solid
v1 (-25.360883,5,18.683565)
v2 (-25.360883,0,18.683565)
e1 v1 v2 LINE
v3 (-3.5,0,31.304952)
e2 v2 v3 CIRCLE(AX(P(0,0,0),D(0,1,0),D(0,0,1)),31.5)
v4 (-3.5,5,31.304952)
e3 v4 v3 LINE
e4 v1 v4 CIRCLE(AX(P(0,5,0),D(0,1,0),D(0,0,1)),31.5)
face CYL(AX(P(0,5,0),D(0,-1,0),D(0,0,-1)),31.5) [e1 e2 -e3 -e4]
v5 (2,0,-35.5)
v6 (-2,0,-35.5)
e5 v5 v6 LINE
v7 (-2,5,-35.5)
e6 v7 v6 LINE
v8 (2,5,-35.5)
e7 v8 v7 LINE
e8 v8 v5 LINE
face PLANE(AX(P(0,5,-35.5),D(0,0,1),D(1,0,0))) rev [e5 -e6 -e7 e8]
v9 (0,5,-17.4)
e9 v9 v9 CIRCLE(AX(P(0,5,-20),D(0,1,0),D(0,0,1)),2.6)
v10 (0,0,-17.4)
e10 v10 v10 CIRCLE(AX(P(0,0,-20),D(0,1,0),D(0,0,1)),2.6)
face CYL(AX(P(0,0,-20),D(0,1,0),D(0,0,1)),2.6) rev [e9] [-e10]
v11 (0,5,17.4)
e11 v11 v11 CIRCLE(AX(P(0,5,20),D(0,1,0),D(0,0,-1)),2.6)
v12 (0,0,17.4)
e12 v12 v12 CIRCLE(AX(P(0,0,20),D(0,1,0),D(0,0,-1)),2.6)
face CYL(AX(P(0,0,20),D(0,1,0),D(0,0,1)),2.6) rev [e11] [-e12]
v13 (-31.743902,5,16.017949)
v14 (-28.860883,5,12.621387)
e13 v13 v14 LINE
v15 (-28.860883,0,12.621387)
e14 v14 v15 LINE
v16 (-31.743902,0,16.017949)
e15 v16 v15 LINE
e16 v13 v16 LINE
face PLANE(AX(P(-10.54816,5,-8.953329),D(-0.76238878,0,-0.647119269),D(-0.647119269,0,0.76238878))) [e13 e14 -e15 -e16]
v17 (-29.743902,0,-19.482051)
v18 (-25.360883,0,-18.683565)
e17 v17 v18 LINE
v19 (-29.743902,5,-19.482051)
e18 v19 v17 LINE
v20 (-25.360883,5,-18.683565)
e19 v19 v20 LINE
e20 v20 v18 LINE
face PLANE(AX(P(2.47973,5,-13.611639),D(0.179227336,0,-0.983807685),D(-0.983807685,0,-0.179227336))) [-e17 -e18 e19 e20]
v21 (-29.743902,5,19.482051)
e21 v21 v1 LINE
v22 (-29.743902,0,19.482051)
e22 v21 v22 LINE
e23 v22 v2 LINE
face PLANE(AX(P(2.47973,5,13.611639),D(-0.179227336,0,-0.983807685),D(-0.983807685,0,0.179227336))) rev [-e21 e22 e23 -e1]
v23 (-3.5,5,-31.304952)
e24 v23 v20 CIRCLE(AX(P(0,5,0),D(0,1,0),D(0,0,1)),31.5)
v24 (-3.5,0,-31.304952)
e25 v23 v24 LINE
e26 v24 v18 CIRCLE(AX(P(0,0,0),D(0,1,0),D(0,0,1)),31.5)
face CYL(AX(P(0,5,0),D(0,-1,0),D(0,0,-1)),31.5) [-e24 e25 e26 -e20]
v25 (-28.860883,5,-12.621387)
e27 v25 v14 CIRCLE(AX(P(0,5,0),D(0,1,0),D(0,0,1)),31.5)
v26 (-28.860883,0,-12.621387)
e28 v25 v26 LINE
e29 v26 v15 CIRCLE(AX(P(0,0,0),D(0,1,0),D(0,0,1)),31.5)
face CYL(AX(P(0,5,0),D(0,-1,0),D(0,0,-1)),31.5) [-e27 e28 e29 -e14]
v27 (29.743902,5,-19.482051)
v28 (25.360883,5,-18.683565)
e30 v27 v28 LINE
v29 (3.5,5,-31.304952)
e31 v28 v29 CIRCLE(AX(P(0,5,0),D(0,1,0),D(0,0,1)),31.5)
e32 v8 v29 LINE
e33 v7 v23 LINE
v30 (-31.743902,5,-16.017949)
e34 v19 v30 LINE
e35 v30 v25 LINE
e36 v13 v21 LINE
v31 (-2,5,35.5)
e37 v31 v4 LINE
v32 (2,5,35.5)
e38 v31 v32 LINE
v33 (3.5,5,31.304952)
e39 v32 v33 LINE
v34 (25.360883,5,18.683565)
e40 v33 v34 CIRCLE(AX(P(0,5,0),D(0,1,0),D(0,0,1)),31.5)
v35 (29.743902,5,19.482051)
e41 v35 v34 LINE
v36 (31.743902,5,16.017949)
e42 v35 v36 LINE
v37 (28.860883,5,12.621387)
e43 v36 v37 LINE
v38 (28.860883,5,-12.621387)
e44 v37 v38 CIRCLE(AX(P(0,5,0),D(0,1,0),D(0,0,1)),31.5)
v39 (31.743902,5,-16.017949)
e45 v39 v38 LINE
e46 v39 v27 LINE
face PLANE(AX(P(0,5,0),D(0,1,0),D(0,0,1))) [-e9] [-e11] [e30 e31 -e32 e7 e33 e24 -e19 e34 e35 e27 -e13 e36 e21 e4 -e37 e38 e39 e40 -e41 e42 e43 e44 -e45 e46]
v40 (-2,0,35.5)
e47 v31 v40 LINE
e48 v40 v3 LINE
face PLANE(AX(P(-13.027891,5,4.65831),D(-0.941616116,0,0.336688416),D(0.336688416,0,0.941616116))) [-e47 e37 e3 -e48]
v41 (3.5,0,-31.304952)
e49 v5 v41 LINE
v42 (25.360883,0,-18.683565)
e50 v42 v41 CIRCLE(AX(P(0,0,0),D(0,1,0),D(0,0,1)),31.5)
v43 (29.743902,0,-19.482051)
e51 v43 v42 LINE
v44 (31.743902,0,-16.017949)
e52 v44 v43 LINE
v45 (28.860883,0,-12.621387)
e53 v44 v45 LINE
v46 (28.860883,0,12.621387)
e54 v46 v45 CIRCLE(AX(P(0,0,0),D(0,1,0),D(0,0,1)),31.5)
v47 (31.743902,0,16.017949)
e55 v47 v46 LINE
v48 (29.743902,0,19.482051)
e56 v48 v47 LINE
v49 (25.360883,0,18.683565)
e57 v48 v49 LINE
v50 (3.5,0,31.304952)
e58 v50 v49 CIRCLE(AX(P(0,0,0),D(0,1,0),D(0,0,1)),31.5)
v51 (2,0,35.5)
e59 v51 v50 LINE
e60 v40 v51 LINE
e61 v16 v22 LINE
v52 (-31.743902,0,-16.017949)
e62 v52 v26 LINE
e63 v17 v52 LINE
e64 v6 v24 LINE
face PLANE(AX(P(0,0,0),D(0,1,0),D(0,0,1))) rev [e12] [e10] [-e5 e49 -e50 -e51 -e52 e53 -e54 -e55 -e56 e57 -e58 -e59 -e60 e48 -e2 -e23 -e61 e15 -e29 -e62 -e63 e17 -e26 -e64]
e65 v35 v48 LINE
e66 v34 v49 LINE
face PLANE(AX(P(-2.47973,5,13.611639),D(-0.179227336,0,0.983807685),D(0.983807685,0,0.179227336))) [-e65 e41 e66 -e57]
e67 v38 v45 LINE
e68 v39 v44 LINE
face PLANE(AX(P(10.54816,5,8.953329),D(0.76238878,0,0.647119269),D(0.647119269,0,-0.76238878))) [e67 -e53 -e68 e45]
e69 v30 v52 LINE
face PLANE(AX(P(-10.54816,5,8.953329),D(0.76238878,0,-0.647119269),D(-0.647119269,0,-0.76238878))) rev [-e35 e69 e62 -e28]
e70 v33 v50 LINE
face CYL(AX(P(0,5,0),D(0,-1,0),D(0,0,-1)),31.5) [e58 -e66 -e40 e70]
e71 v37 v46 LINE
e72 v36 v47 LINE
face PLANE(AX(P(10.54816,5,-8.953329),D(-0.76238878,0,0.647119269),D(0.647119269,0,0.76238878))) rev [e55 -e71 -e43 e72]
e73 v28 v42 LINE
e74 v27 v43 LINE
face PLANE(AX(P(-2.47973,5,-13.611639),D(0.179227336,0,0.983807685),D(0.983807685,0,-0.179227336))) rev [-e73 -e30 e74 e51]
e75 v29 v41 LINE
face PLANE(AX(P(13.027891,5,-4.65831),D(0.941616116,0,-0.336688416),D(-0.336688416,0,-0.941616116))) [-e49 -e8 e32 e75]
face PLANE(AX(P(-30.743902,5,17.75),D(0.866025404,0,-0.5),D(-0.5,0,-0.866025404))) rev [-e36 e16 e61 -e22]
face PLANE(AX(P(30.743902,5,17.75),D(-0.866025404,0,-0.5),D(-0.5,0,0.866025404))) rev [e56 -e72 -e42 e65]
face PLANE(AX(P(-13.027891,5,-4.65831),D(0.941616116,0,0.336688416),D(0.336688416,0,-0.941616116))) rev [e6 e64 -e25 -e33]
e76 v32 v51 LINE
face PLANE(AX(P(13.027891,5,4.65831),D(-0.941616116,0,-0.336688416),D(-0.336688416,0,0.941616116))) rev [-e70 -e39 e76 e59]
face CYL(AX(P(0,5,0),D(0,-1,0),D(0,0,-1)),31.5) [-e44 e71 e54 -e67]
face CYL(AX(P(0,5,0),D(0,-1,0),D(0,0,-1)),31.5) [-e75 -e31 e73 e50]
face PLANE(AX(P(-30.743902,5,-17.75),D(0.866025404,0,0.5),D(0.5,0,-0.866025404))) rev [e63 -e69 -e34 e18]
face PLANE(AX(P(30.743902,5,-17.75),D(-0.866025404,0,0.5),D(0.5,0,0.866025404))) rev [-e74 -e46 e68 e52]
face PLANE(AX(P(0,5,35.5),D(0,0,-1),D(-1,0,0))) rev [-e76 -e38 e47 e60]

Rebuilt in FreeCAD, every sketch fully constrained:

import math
import FreeCAD as App
import Part
import Sketcher

V = App.Vector
Q = App.Units.Quantity

doc = App.newDocument("Part")
params = doc.addObject("Spreadsheet::Sheet", "Params")
for row, (alias, value) in enumerate([
    ("sketch1_radius", "31.5 mm"),
    ("sketch1_width", "4 mm"),
    ("sketch1_length", "4 mm"),
    ("pad1_length", "5 mm"),
    ("sketch2_diameter", "5.2 mm"),
    ("pocket1_length", "5 mm"),
], start=1):
    params.set(f"A{row}", alias)
    params.set(f"B{row}", "=" + value)
    params.setAlias(f"B{row}", alias)

body = doc.addObject("PartDesign::Body", "Body")

# Sketch on XZ plane
sketch1 = body.newObject("Sketcher::SketchObject", "Sketch")
sketch1.AttachmentSupport = (doc.getObject("XZ_Plane"), [""])
sketch1.MapMode = "FlatFace"
sketch1.addGeometry([
    Part.LineSegment(V(2, -35.5, 0), V(-2, -35.5, 0)),  # 0
    Part.LineSegment(V(-2, -35.5, 0), V(-3.5, -31.3, 0)),  # 1
    Part.ArcOfCircle(Part.Circle(V(0, 0, 0), V(0, 0, 1), 31.5), math.radians(-144), math.radians(-96)),  # 2
    Part.LineSegment(V(-25.4, -18.7, 0), V(-29.7, -19.5, 0)),  # 3
    Part.LineSegment(V(-29.7, -19.5, 0), V(-31.7, -16, 0)),  # 4
    Part.LineSegment(V(-31.7, -16, 0), V(-28.9, -12.6, 0)),  # 5
    Part.ArcOfCircle(Part.Circle(V(0, 0, 0), V(0, 0, 1), 31.5), math.radians(156), math.radians(204)),  # 6
    Part.LineSegment(V(-28.9, 12.6, 0), V(-31.7, 16, 0)),  # 7
    Part.LineSegment(V(-31.7, 16, 0), V(-29.7, 19.5, 0)),  # 8
    Part.LineSegment(V(-29.7, 19.5, 0), V(-25.4, 18.7, 0)),  # 9
    Part.ArcOfCircle(Part.Circle(V(0, 0, 0), V(0, 0, 1), 31.5), math.radians(96), math.radians(144)),  # 10
    Part.LineSegment(V(-3.5, 31.3, 0), V(-2, 35.5, 0)),  # 11
    Part.LineSegment(V(-2, 35.5, 0), V(2, 35.5, 0)),  # 12
    Part.LineSegment(V(2, 35.5, 0), V(3.5, 31.3, 0)),  # 13
    Part.ArcOfCircle(Part.Circle(V(0, 0, 0), V(0, 0, 1), 31.5), math.radians(36), math.radians(84)),  # 14
    Part.LineSegment(V(25.4, 18.7, 0), V(29.7, 19.5, 0)),  # 15
    Part.LineSegment(V(29.7, 19.5, 0), V(31.7, 16, 0)),  # 16
    Part.LineSegment(V(31.7, 16, 0), V(28.9, 12.6, 0)),  # 17
    Part.ArcOfCircle(Part.Circle(V(0, 0, 0), V(0, 0, 1), 31.5), math.radians(-24), math.radians(24)),  # 18
    Part.LineSegment(V(28.9, -12.6, 0), V(31.7, -16, 0)),  # 19
    Part.LineSegment(V(31.7, -16, 0), V(29.7, -19.5, 0)),  # 20
    Part.LineSegment(V(29.7, -19.5, 0), V(25.4, -18.7, 0)),  # 21
    Part.ArcOfCircle(Part.Circle(V(0, 0, 0), V(0, 0, 1), 31.5), math.radians(-84), math.radians(-36)),  # 22
    Part.LineSegment(V(3.5, -31.3, 0), V(2, -35.5, 0)),  # 23
], False)
sketch1.addConstraint([
    Sketcher.Constraint("Coincident", 0, 2, 1, 1),
    Sketcher.Constraint("Coincident", 1, 2, 2, 2),
    Sketcher.Constraint("Coincident", 2, 1, 3, 1),
    Sketcher.Constraint("Coincident", 3, 2, 4, 1),
    Sketcher.Constraint("Coincident", 4, 2, 5, 1),
    Sketcher.Constraint("Coincident", 5, 2, 6, 2),
    Sketcher.Constraint("Coincident", 6, 1, 7, 1),
    Sketcher.Constraint("Coincident", 7, 2, 8, 1),
    Sketcher.Constraint("Coincident", 8, 2, 9, 1),
    Sketcher.Constraint("Coincident", 9, 2, 10, 2),
    Sketcher.Constraint("Coincident", 10, 1, 11, 1),
    Sketcher.Constraint("Coincident", 11, 2, 12, 1),
    Sketcher.Constraint("Coincident", 12, 2, 13, 1),
    Sketcher.Constraint("Coincident", 13, 2, 14, 2),
    Sketcher.Constraint("Coincident", 14, 1, 15, 1),
    Sketcher.Constraint("Coincident", 15, 2, 16, 1),
    Sketcher.Constraint("Coincident", 16, 2, 17, 1),
    Sketcher.Constraint("Coincident", 17, 2, 18, 2),
    Sketcher.Constraint("Coincident", 18, 1, 19, 1),
    Sketcher.Constraint("Coincident", 19, 2, 20, 1),
    Sketcher.Constraint("Coincident", 20, 2, 21, 1),
    Sketcher.Constraint("Coincident", 21, 2, 22, 2),
    Sketcher.Constraint("Coincident", 22, 1, 23, 1),
    Sketcher.Constraint("Coincident", 23, 2, 0, 1),
    Sketcher.Constraint("Horizontal", 0),
    Sketcher.Constraint("Horizontal", 12),
    Sketcher.Constraint("Coincident", 2, 3, -1, 1),
    Sketcher.Constraint("Coincident", 6, 3, -1, 1),
    Sketcher.Constraint("Coincident", 10, 3, -1, 1),
    Sketcher.Constraint("Coincident", 14, 3, -1, 1),
    Sketcher.Constraint("Coincident", 18, 3, -1, 1),
    Sketcher.Constraint("Coincident", 22, 3, -1, 1),
    Sketcher.Constraint("Equal", 2, 6),
    Sketcher.Constraint("Equal", 6, 10),
    Sketcher.Constraint("Equal", 10, 14),
    Sketcher.Constraint("Equal", 14, 18),
    Sketcher.Constraint("Equal", 18, 22),
    Sketcher.Constraint("Symmetric", 0, 2, 12, 2, -1, 1),
    Sketcher.Constraint("Symmetric", 3, 2, 15, 2, -1, 1),
    Sketcher.Constraint("Symmetric", 4, 2, 16, 2, -1, 1),
    Sketcher.Constraint("Symmetric", 7, 2, 19, 2, -1, 1),
    Sketcher.Constraint("Symmetric", 8, 2, 20, 2, -1, 1),
    Sketcher.Constraint("Symmetric", 8, 2, 15, 2, -2),
    Sketcher.Constraint("Symmetric", 7, 2, 16, 2, -2),
    Sketcher.Constraint("Parallel", 1, 13),
    Sketcher.Constraint("Parallel", 3, 15),
    Sketcher.Constraint("Parallel", 5, 17),
    Sketcher.Constraint("Parallel", 7, 19),
    Sketcher.Constraint("Parallel", 9, 21),
    Sketcher.Constraint("Parallel", 11, 23),
    Sketcher.Constraint("Horizontal", 10, 1, 13, 2),
    Sketcher.Constraint("Horizontal", 9, 2, 14, 1),
    Sketcher.Constraint("Horizontal", 6, 1, 17, 2),
    Sketcher.Constraint("Horizontal", 1, 2, 22, 1),
    Sketcher.Constraint("Vertical", 0, 2, 11, 2),
    Sketcher.Constraint("Equal", 1, 3),
    Sketcher.Constraint("Equal", 3, 5),
    Sketcher.Constraint("Radius", 2, 31.5),
    Sketcher.Constraint("DistanceX", 0, 2, 0, 1, 4.0),
    Sketcher.Constraint("Angle", 4, Q("120 deg")),
    Sketcher.Constraint("Distance", 4, 4.0),
    Sketcher.Constraint("DistanceX", 10, 1, 13, 2, 7.0),
    Sketcher.Constraint("DistanceY", 0, 2, -1, 1, 35.5),
    Sketcher.Constraint("DistanceX", 5, 2, 2, 1, 3.5),
    Sketcher.Constraint("DistanceX", 3, 2, -1, 1, 29.743902),
])
sketch1.setExpression("Constraints[57]", "Params.sketch1_radius")
sketch1.setExpression("Constraints[58]", "Params.sketch1_width")
sketch1.setExpression("Constraints[60]", "Params.sketch1_length")
pad1 = body.newObject("PartDesign::Pad", "Pad")
pad1.Profile = sketch1
pad1.setExpression("Length", "Params.pad1_length")
pad1.Reversed = True

# Sketch on XZ plane
sketch2 = body.newObject("Sketcher::SketchObject", "Sketch001")
sketch2.AttachmentSupport = (doc.getObject("XZ_Plane"), [""])
sketch2.MapMode = "FlatFace"
sketch2.AttachmentOffset = App.Placement(V(0, 0, -5), App.Rotation())
sketch2.addGeometry([
    Part.Circle(V(0, -20, 0), V(0, 0, 1), 2.6),
    Part.Circle(V(0, 20, 0), V(0, 0, 1), 2.6),
], False)
sketch2.addConstraint([
    Sketcher.Constraint("Equal", 0, 1),
    Sketcher.Constraint("Symmetric", 0, 3, 1, 3, -1, 1),
    Sketcher.Constraint("PointOnObject", 0, 3, -2),
    Sketcher.Constraint("Diameter", 0, 5.2),
    Sketcher.Constraint("DistanceY", 0, 3, -1, 1, 20.0),
])
sketch2.setExpression("Constraints[3]", "Params.sketch2_diameter")
pocket1 = body.newObject("PartDesign::Pocket", "Pocket")
pocket1.Profile = sketch2
pocket1.setExpression("Length", "Params.pocket1_length")
pocket1.Reversed = True

doc.recompute()
